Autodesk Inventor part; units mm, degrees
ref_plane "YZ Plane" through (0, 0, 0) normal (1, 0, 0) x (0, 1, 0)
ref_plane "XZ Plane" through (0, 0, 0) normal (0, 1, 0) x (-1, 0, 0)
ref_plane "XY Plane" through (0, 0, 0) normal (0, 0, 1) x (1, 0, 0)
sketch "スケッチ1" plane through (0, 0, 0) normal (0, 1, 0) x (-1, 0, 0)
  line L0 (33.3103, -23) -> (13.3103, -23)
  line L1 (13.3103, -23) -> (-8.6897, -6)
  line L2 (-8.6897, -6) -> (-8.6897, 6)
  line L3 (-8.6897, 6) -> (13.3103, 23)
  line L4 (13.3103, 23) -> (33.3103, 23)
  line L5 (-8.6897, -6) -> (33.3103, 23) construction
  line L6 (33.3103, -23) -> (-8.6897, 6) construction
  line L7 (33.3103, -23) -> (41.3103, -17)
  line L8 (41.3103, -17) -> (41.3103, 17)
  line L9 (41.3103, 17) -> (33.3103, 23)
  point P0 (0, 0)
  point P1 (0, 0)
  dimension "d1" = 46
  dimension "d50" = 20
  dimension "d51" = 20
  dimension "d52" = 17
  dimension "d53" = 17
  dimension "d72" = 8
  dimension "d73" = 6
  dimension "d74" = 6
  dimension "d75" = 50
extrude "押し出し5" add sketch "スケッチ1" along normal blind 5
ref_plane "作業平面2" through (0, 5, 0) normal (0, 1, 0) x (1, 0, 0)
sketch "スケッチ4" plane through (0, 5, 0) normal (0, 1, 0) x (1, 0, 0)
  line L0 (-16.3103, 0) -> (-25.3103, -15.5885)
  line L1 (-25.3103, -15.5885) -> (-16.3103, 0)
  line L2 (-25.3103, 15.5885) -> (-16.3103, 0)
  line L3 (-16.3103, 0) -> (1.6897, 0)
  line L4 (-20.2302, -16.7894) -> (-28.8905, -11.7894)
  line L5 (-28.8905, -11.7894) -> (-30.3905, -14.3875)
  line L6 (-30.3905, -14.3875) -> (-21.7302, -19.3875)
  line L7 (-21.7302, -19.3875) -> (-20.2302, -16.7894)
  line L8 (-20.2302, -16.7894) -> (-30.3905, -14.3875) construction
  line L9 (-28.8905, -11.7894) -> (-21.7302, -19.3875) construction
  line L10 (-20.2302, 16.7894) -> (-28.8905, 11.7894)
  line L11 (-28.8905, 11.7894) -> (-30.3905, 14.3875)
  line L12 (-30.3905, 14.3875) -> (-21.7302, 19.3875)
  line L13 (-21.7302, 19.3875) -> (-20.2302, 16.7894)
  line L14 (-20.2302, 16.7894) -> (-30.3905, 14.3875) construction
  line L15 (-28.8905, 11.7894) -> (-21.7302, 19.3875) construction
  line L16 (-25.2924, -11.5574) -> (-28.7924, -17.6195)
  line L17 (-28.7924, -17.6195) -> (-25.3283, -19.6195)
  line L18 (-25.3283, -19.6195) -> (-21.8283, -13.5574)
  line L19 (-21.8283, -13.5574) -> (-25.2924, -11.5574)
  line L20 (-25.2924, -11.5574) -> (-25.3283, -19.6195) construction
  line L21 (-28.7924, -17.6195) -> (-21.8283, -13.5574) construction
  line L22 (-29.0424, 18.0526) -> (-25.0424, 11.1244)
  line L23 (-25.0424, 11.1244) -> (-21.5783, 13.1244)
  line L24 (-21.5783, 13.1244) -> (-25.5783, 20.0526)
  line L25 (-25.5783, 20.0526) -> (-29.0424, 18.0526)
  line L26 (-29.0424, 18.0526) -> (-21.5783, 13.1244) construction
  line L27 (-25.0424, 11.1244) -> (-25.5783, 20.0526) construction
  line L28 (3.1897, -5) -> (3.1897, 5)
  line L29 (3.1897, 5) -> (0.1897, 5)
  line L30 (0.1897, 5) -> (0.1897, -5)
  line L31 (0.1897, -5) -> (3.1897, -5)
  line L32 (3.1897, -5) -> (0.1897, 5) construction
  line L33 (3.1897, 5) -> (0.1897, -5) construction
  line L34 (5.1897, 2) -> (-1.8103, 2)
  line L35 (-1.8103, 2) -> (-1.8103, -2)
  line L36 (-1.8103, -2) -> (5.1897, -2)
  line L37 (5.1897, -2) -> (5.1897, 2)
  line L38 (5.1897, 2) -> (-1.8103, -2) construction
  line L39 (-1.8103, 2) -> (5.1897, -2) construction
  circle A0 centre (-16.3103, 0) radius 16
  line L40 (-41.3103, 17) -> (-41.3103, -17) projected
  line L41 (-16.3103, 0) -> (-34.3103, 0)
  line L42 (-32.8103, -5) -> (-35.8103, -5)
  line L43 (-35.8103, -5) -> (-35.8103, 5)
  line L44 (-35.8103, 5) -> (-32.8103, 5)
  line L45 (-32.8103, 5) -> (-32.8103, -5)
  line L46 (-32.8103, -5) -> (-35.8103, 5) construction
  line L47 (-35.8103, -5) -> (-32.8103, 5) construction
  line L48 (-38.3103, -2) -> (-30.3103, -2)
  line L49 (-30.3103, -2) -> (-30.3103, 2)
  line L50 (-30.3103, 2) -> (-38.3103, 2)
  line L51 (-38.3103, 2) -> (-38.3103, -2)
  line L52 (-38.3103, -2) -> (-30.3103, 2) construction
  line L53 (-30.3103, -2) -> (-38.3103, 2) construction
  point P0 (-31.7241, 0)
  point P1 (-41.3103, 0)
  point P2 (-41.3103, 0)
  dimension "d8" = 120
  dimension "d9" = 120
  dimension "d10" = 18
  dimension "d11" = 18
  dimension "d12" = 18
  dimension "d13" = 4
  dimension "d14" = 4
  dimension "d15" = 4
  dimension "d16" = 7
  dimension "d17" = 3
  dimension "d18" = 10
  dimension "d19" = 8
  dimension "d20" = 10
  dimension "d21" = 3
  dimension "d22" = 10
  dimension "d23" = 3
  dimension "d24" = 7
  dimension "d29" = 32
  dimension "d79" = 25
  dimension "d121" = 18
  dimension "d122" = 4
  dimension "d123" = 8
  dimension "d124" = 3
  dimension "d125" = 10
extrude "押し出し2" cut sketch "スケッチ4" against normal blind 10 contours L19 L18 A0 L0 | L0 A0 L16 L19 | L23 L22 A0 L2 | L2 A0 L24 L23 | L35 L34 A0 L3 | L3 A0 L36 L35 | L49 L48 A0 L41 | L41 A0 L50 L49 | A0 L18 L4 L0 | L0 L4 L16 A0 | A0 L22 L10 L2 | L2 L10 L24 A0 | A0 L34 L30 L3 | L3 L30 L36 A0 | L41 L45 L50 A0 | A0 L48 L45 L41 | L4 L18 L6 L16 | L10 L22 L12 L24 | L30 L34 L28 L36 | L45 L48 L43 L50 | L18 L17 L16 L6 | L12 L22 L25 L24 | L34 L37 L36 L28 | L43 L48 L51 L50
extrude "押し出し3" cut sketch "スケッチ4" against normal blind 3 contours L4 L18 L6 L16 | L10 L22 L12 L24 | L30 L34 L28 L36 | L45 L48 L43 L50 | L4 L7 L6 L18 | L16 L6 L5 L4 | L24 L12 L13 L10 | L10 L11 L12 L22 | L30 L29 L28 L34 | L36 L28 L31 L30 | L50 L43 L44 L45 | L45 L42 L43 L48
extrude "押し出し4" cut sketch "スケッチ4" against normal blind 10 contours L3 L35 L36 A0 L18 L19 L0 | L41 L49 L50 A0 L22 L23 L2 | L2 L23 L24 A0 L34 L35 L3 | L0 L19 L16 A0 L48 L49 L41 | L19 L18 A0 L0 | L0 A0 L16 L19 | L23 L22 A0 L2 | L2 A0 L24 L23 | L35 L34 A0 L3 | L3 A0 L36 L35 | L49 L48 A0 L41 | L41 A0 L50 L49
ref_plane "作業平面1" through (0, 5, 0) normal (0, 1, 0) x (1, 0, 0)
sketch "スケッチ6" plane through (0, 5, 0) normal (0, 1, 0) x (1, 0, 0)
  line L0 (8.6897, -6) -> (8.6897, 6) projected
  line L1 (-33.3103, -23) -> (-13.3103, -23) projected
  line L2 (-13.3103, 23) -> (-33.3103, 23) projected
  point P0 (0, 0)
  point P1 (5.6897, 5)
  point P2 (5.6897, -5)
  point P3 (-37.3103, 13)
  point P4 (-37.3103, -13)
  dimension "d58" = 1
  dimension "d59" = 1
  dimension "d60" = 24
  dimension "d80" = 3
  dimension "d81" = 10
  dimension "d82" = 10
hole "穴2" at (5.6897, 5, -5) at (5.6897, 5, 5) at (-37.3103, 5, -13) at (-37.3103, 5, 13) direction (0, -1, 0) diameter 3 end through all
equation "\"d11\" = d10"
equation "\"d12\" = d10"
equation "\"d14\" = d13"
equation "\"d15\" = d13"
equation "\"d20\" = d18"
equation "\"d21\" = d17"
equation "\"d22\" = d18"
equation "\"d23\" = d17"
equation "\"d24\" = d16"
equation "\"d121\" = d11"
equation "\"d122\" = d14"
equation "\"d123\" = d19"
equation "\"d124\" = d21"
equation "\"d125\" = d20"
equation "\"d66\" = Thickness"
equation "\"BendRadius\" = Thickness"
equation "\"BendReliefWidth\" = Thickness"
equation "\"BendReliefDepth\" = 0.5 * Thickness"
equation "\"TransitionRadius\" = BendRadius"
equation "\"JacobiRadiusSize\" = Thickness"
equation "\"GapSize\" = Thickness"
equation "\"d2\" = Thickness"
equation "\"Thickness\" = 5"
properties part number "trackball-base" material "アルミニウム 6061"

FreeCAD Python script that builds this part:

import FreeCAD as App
import Part
import Sketcher
from FreeCAD import Vector
Q = App.Units.Quantity

doc = App.newDocument("Part")
body = doc.addObject("PartDesign::Body", "Body")

# Sketch on XZ plane
sketch1 = body.newObject("Sketcher::SketchObject", "Sketch")
sketch1.AttachmentSupport = (doc.getObject("XZ_Plane"), [""])
sketch1.MapMode = "FlatFace"
sketch1.addGeometry(Part.LineSegment(Vector(-13, -23, 0), Vector(-33, -23, 0)), False)
sketch1.addGeometry(Part.LineSegment(Vector(-33, -23, 0), Vector(-41, -17, 0)), False)
sketch1.addGeometry(Part.LineSegment(Vector(-41, -17, 0), Vector(-41, 17, 0)), False)
sketch1.addGeometry(Part.LineSegment(Vector(-41, 17, 0), Vector(-33, 23, 0)), False)
sketch1.addGeometry(Part.LineSegment(Vector(-33, 23, 0), Vector(-13, 23, 0)), False)
sketch1.addGeometry(Part.LineSegment(Vector(-13, 23, 0), Vector(9, 6, 0)), False)
sketch1.addGeometry(Part.LineSegment(Vector(9, 6, 0), Vector(9, -6, 0)), False)
sketch1.addGeometry(Part.LineSegment(Vector(9, -6, 0), Vector(-13, -23, 0)), False)
sketch1.addConstraint(Sketcher.Constraint("Coincident", 0, 2, 1, 1))
sketch1.addConstraint(Sketcher.Constraint("Coincident", 1, 2, 2, 1))
sketch1.addConstraint(Sketcher.Constraint("Coincident", 2, 2, 3, 1))
sketch1.addConstraint(Sketcher.Constraint("Coincident", 3, 2, 4, 1))
sketch1.addConstraint(Sketcher.Constraint("Coincident", 4, 2, 5, 1))
sketch1.addConstraint(Sketcher.Constraint("Coincident", 5, 2, 6, 1))
sketch1.addConstraint(Sketcher.Constraint("Coincident", 6, 2, 7, 1))
sketch1.addConstraint(Sketcher.Constraint("Coincident", 7, 2, 0, 1))
sketch1.addConstraint(Sketcher.Constraint("Horizontal", 0))
sketch1.addConstraint(Sketcher.Constraint("Vertical", 2))
sketch1.addConstraint(Sketcher.Constraint("Horizontal", 4))
sketch1.addConstraint(Sketcher.Constraint("Vertical", 6))
sketch1.addConstraint(Sketcher.Constraint("Symmetric", 0, 2, 3, 2, -1))
sketch1.addConstraint(Sketcher.Constraint("Vertical", 4, 2, 7, 2))
sketch1.addConstraint(Sketcher.Constraint("Equal", 1, 3))
sketch1.addConstraint(Sketcher.Constraint("Equal", 5, 7))
sketch1.addConstraint(Sketcher.Constraint("DistanceX", 0, 2, 0, 1, Q("20 mm")))
sketch1.addConstraint(Sketcher.Constraint("DistanceY", 1, 2, -1, 1, Q("17 mm")))
sketch1.addConstraint(Sketcher.Constraint("DistanceY", -1, 1, 5, 2, Q("6 mm")))
sketch1.addConstraint(Sketcher.Constraint("DistanceX", 1, 2, 0, 2, Q("8 mm")))
sketch1.addConstraint(Sketcher.Constraint("DistanceY", 0, 2, 1, 2, Q("6 mm")))
sketch1.addConstraint(Sketcher.Constraint("DistanceX", 2, 2, 5, 2, Q("50 mm")))
sketch1.addConstraint(Sketcher.Constraint("DistanceX", 0, 2, -1, 1, Q("33.3103 mm")))
pad1 = body.newObject("PartDesign::Pad", "Pad")
pad1.Profile = sketch1
pad1.Length = 5
pad1.Reversed = True

# Sketch on XZ plane
sketch2 = body.newObject("Sketcher::SketchObject", "Sketch001")
sketch2.AttachmentSupport = (doc.getObject("XZ_Plane"), [""])
sketch2.MapMode = "FlatFace"
sketch2.AttachmentOffset = App.Placement(Vector(0, 0, -5), App.Rotation())
sketch2.addGeometry(Part.LineSegment(Vector(-21.8, 13.6, 0), Vector(-25.3, 11.6, 0)), False)
sketch2.addGeometry(Part.LineSegment(Vector(-25.3, 11.6, 0), Vector(-28.8, 17.6, 0)), False)
sketch2.addGeometry(Part.LineSegment(Vector(-28.8, 17.6, 0), Vector(-25.3, 19.6, 0)), False)
sketch2.addGeometry(Part.LineSegment(Vector(-25.3, 19.6, 0), Vector(-21.8, 13.6, 0)), False)
sketch2.addGeometry(Part.LineSegment(Vector(-25, -11.1, 0), Vector(-21.6, -13.1, 0)), False)
sketch2.addGeometry(Part.LineSegment(Vector(-21.6, -13.1, 0), Vector(-25.6, -20.1, 0)), False)
sketch2.addGeometry(Part.LineSegment(Vector(-25.6, -20.1, 0), Vector(-29, -18.1, 0)), False)
sketch2.addGeometry(Part.LineSegment(Vector(-29, -18.1, 0), Vector(-25, -11.1, 0)), False)
sketch2.addGeometry(Part.LineSegment(Vector(-1.8, -2, 0), Vector(-1.8, 2, 0)), False)
sketch2.addGeometry(Part.LineSegment(Vector(-1.8, 2, 0), Vector(5.2, 2, 0)), False)
sketch2.addGeometry(Part.LineSegment(Vector(5.2, 2, 0), Vector(5.2, -2, 0)), False)
sketch2.addGeometry(Part.LineSegment(Vector(5.2, -2, 0), Vector(-1.8, -2, 0)), False)
sketch2.addGeometry(Part.LineSegment(Vector(-30.3, 2, 0), Vector(-30.3, -2, 0)), False)
sketch2.addGeometry(Part.LineSegment(Vector(-30.3, -2, 0), Vector(-38.3, -2, 0)), False)
sketch2.addGeometry(Part.LineSegment(Vector(-38.3, -2, 0), Vector(-38.3, 2, 0)), False)
sketch2.addGeometry(Part.LineSegment(Vector(-38.3, 2, 0), Vector(-30.3, 2, 0)), False)
sketch2.addConstraint(Sketcher.Constraint("Coincident", 0, 2, 1, 1))
sketch2.addConstraint(Sketcher.Constraint("Coincident", 1, 2, 2, 1))
sketch2.addConstraint(Sketcher.Constraint("Coincident", 2, 2, 3, 1))
sketch2.addConstraint(Sketcher.Constraint("Coincident", 3, 2, 0, 1))
sketch2.addConstraint(Sketcher.Constraint("Coincident", 4, 2, 5, 1))
sketch2.addConstraint(Sketcher.Constraint("Coincident", 5, 2, 6, 1))
sketch2.addConstraint(Sketcher.Constraint("Coincident", 6, 2, 7, 1))
sketch2.addConstraint(Sketcher.Constraint("Coincident", 7, 2, 4, 1))
sketch2.addConstraint(Sketcher.Constraint("Coincident", 8, 2, 9, 1))
sketch2.addConstraint(Sketcher.Constraint("Coincident", 9, 2, 10, 1))
sketch2.addConstraint(Sketcher.Constraint("Coincident", 10, 2, 11, 1))
sketch2.addConstraint(Sketcher.Constraint("Coincident", 11, 2, 8, 1))
sketch2.addConstraint(Sketcher.Constraint("Coincident", 12, 2, 13, 1))
sketch2.addConstraint(Sketcher.Constraint("Coincident", 13, 2, 14, 1))
sketch2.addConstraint(Sketcher.Constraint("Coincident", 14, 2, 15, 1))
sketch2.addConstraint(Sketcher.Constraint("Coincident", 15, 2, 12, 1))
sketch2.addConstraint(Sketcher.Constraint("Vertical", 8))
sketch2.addConstraint(Sketcher.Constraint("Horizontal", 9))
sketch2.addConstraint(Sketcher.Constraint("Vertical", 10))
sketch2.addConstraint(Sketcher.Constraint("Horizontal", 11))
sketch2.addConstraint(Sketcher.Constraint("Vertical", 12))
sketch2.addConstraint(Sketcher.Constraint("Horizontal", 13))
sketch2.addConstraint(Sketcher.Constraint("Vertical", 14))
sketch2.addConstraint(Sketcher.Constraint("Horizontal", 15))
sketch2.addConstraint(Sketcher.Constraint("Perpendicular", 0, 1))
sketch2.addConstraint(Sketcher.Constraint("Perpendicular", 1, 2))
sketch2.addConstraint(Sketcher.Constraint("Perpendicular", 2, 3))
sketch2.addConstraint(Sketcher.Constraint("Perpendicular", 4, 5))
sketch2.addConstraint(Sketcher.Constraint("Perpendicular", 5, 6))
sketch2.addConstraint(Sketcher.Constraint("Perpendicular", 6, 7))
sketch2.addConstraint(Sketcher.Constraint("Horizontal", 11, 2, 12, 2))
sketch2.addConstraint(Sketcher.Constraint("Horizontal", 9, 2, 14, 2))
sketch2.addConstraint(Sketcher.Constraint("Equal", 2, 4))
sketch2.addConstraint(Sketcher.Constraint("DistanceX", 9, 1, 9, 2, Q("7 mm")))
sketch2.addConstraint(Sketcher.Constraint("DistanceX", 13, 2, 13, 1, Q("8 mm")))
sketch2.addConstraint(Sketcher.Constraint("DistanceY", 8, 1, 8, 2, Q("4 mm")))
sketch2.addConstraint(Sketcher.Constraint("Angle", 1, Q("120.0003 deg")))
sketch2.addConstraint(Sketcher.Constraint("Angle", 5, Q("-120 deg")))
sketch2.addConstraint(Sketcher.Constraint("Distance", 0, Q("4 mm")))
sketch2.addConstraint(Sketcher.Constraint("Distance", 1, Q("7 mm")))
sketch2.addConstraint(Sketcher.Constraint("Distance", 5, Q("8 mm")))
sketch2.addConstraint(Sketcher.Constraint("DistanceY", -1, 1, 8, 2, Q("2 mm")))
sketch2.addConstraint(Sketcher.Constraint("DistanceX", 3, 2, 4, 2, Q("0.25 mm")))
sketch2.addConstraint(Sketcher.Constraint("DistanceY", 5, 2, 0, 2, Q("31.61 mm")))
sketch2.addConstraint(Sketcher.Constraint("DistanceX", 3, 2, 8, 2, Q("20.018 mm")))
sketch2.addConstraint(Sketcher.Constraint("DistanceX", 12, 2, 7, 2, Q("5.268 mm")))
sketch2.addConstraint(Sketcher.Constraint("DistanceX", 0, 2, -1, 1, Q("25.2924 mm")))
sketch2.addConstraint(Sketcher.Constraint("DistanceY", -1, 1, 0, 2, Q("11.5574 mm")))
pocket1 = body.newObject("PartDesign::Pocket", "Pocket")
pocket1.Profile = sketch2
pocket1.Length = 10
pocket1.Reversed = True

# Sketch on XZ plane
sketch3 = body.newObject("Sketcher::SketchObject", "Sketch002")
sketch3.AttachmentSupport = (doc.getObject("XZ_Plane"), [""])
sketch3.MapMode = "FlatFace"
sketch3.AttachmentOffset = App.Placement(Vector(0, 0, -5), App.Rotation())
sketch3.addGeometry(Part.LineSegment(Vector(-28.9, 11.8, 0), Vector(-30.4, 14.4, 0)), False)
sketch3.addGeometry(Part.LineSegment(Vector(-30.4, 14.4, 0), Vector(-21.7, 19.4, 0)), False)
sketch3.addGeometry(Part.LineSegment(Vector(-21.7, 19.4, 0), Vector(-20.2, 16.8, 0)), False)
sketch3.addGeometry(Part.LineSegment(Vector(-20.2, 16.8, 0), Vector(-28.9, 11.8, 0)), False)
sketch3.addGeometry(Part.LineSegment(Vector(-20.2, -16.8, 0), Vector(-21.7, -19.4, 0)), False)
sketch3.addGeometry(Part.LineSegment(Vector(-21.7, -19.4, 0), Vector(-30.4, -14.4, 0)), False)
sketch3.addGeometry(Part.LineSegment(Vector(-30.4, -14.4, 0), Vector(-28.9, -11.8, 0)), False)
sketch3.addGeometry(Part.LineSegment(Vector(-28.9, -11.8, 0), Vector(-20.2, -16.8, 0)), False)
sketch3.addGeometry(Part.LineSegment(Vector(0.2, 5, 0), Vector(3.2, 5, 0)), False)
sketch3.addGeometry(Part.LineSegment(Vector(3.2, 5, 0), Vector(3.2, -5, 0)), False)
sketch3.addGeometry(Part.LineSegment(Vector(3.2, -5, 0), Vector(0.2, -5, 0)), False)
sketch3.addGeometry(Part.LineSegment(Vector(0.2, -5, 0), Vector(0.2, 5, 0)), False)
sketch3.addGeometry(Part.LineSegment(Vector(-32.8, -5, 0), Vector(-35.8, -5, 0)), False)
sketch3.addGeometry(Part.LineSegment(Vector(-35.8, -5, 0), Vector(-35.8, 5, 0)), False)
sketch3.addGeometry(Part.LineSegment(Vector(-35.8, 5, 0), Vector(-32.8, 5, 0)), False)
sketch3.addGeometry(Part.LineSegment(Vector(-32.8, 5, 0), Vector(-32.8, -5, 0)), False)
sketch3.addConstraint(Sketcher.Constraint("Coincident", 0, 2, 1, 1))
sketch3.addConstraint(Sketcher.Constraint("Coincident", 1, 2, 2, 1))
sketch3.addConstraint(Sketcher.Constraint("Coincident", 2, 2, 3, 1))
sketch3.addConstraint(Sketcher.Constraint("Coincident", 3, 2, 0, 1))
sketch3.addConstraint(Sketcher.Constraint("Coincident", 4, 2, 5, 1))
sketch3.addConstraint(Sketcher.Constraint("Coincident", 5, 2, 6, 1))
sketch3.addConstraint(Sketcher.Constraint("Coincident", 6, 2, 7, 1))
sketch3.addConstraint(Sketcher.Constraint("Coincident", 7, 2, 4, 1))
sketch3.addConstraint(Sketcher.Constraint("Coincident", 8, 2, 9, 1))
sketch3.addConstraint(Sketcher.Constraint("Coincident", 9, 2, 10, 1))
sketch3.addConstraint(Sketcher.Constraint("Coincident", 10, 2, 11, 1))
sketch3.addConstraint(Sketcher.Constraint("Coincident", 11, 2, 8, 1))
sketch3.addConstraint(Sketcher.Constraint("Coincident", 12, 2, 13, 1))
sketch3.addConstraint(Sketcher.Constraint("Coincident", 13, 2, 14, 1))
sketch3.addConstraint(Sketcher.Constraint("Coincident", 14, 2, 15, 1))
sketch3.addConstraint(Sketcher.Constraint("Coincident", 15, 2, 12, 1))
sketch3.addConstraint(Sketcher.Constraint("Horizontal", 8))
sketch3.addConstraint(Sketcher.Constraint("Vertical", 9))
sketch3.addConstraint(Sketcher.Constraint("Horizontal", 10))
sketch3.addConstraint(Sketcher.Constraint("Vertical", 11))
sketch3.addConstraint(Sketcher.Constraint("Horizontal", 12))
sketch3.addConstraint(Sketcher.Constraint("Vertical", 13))
sketch3.addConstraint(Sketcher.Constraint("Horizontal", 14))
sketch3.addConstraint(Sketcher.Constraint("Vertical", 15))
sketch3.addConstraint(Sketcher.Constraint("Symmetric", 1, 2, 4, 2, -1))
sketch3.addConstraint(Sketcher.Constraint("Symmetric", 0, 2, 5, 2, -1))
sketch3.addConstraint(Sketcher.Constraint("Symmetric", 3, 2, 6, 2, -1))
sketch3.addConstraint(Sketcher.Constraint("Symmetric", 2, 2, 7, 2, -1))
sketch3.addConstraint(Sketcher.Constraint("Perpendicular", 0, 1))
sketch3.addConstraint(Sketcher.Constraint("Perpendicular", 1, 2))
sketch3.addConstraint(Sketcher.Constraint("Perpendicular", 2, 3))
sketch3.addConstraint(Sketcher.Constraint("Horizontal", 10, 2, 12, 2))
sketch3.addConstraint(Sketcher.Constraint("Horizontal", 11, 2, 13, 2))
sketch3.addConstraint(Sketcher.Constraint("Equal", 10, 12))
sketch3.addConstraint(Sketcher.Constraint("DistanceX", 8, 1, 8, 2, Q("3 mm")))
sketch3.addConstraint(Sketcher.Constraint("DistanceY", 9, 2, 9, 1, Q("10 mm")))
sketch3.addConstraint(Sketcher.Constraint("Angle", 0, Q("119.9998 deg")))
sketch3.addConstraint(Sketcher.Constraint("Distance", 0, Q("3 mm")))
sketch3.addConstraint(Sketcher.Constraint("Distance", 1, Q("10 mm")))
sketch3.addConstraint(Sketcher.Constraint("DistanceY", -1, 1, 8, 2, Q("5 mm")))
sketch3.addConstraint(Sketcher.Constraint("DistanceX", 2, 2, 8, 2, Q("23.42 mm")))
sketch3.addConstraint(Sketcher.Constraint("DistanceX", 12, 2, 7, 2, Q("15.58 mm")))
sketch3.addConstraint(Sketcher.Constraint("DistanceY", 4, 2, 3, 2, Q("31.177 mm")))
sketch3.addConstraint(Sketcher.Constraint("DistanceX", 0, 2, -1, 1, Q("30.3905 mm")))
pocket2 = body.newObject("PartDesign::Pocket", "Pocket001")
pocket2.Profile = sketch3
pocket2.Length = 3
pocket2.Reversed = True

# Sketch on XZ plane
sketch4 = body.newObject("Sketcher::SketchObject", "Sketch003")
sketch4.AttachmentSupport = (doc.getObject("XZ_Plane"), [""])
sketch4.MapMode = "FlatFace"
sketch4.AttachmentOffset = App.Placement(Vector(0, 0, -5), App.Rotation())
sketch4.addGeometry(Part.Circle(Vector(-16, 0, 0), Vector(0, 0, 1), 16), False)
sketch4.addConstraint(Sketcher.Constraint("PointOnObject", 0, 3, -1))
sketch4.addConstraint(Sketcher.Constraint("Diameter", 0, Q("32 mm")))
sketch4.addConstraint(Sketcher.Constraint("DistanceX", 0, 3, -1, 1, Q("16.3103 mm")))
pocket3 = body.newObject("PartDesign::Pocket", "Pocket002")
pocket3.Profile = sketch4
pocket3.Length = 10
pocket3.Reversed = True

# Sketch on XZ plane
sketch5 = body.newObject("Sketcher::SketchObject", "Sketch004")
sketch5.AttachmentSupport = (doc.getObject("XZ_Plane"), [""])
sketch5.MapMode = "FlatFace"
sketch5.AttachmentOffset = App.Placement(Vector(0, 0, -5), App.Rotation())
sketch5.addGeometry(Part.Circle(Vector(5.7, -5, 0), Vector(0, 0, 1), 1.5), False)
sketch5.addGeometry(Part.Circle(Vector(5.7, 5, 0), Vector(0, 0, 1), 1.5), False)
sketch5.addGeometry(Part.Circle(Vector(-37.3, -13, 0), Vector(0, 0, 1), 1.5), False)
sketch5.addGeometry(Part.Circle(Vector(-37.3, 13, 0), Vector(0, 0, 1), 1.5), False)
sketch5.addConstraint(Sketcher.Constraint("Equal", 0, 1))
sketch5.addConstraint(Sketcher.Constraint("Equal", 1, 2))
sketch5.addConstraint(Sketcher.Constraint("Equal", 2, 3))
sketch5.addConstraint(Sketcher.Constraint("Symmetric", 0, 3, 1, 3, -1))
sketch5.addConstraint(Sketcher.Constraint("Symmetric", 2, 3, 3, 3, -1))
sketch5.addConstraint(Sketcher.Constraint("Diameter", 0, Q("3 mm")))
sketch5.addConstraint(Sketcher.Constraint("DistanceY", 0, 3, -1, 1, Q("5 mm")))
sketch5.addConstraint(Sketcher.Constraint("DistanceY", 2, 3, -1, 1, Q("13 mm")))
sketch5.addConstraint(Sketcher.Constraint("DistanceX", 2, 3, 0, 3, Q("43 mm")))
sketch5.addConstraint(Sketcher.Constraint("DistanceX", -1, 1, 0, 3, Q("5.6897 mm")))
doc.recompute()
hole = body.newObject("PartDesign::Hole", "Hole")
hole.Profile = sketch5
hole.ThreadType = "None"
hole.Diameter = 3
hole.DepthType = "ThroughAll"
hole.Reversed = True

doc.recompute()
